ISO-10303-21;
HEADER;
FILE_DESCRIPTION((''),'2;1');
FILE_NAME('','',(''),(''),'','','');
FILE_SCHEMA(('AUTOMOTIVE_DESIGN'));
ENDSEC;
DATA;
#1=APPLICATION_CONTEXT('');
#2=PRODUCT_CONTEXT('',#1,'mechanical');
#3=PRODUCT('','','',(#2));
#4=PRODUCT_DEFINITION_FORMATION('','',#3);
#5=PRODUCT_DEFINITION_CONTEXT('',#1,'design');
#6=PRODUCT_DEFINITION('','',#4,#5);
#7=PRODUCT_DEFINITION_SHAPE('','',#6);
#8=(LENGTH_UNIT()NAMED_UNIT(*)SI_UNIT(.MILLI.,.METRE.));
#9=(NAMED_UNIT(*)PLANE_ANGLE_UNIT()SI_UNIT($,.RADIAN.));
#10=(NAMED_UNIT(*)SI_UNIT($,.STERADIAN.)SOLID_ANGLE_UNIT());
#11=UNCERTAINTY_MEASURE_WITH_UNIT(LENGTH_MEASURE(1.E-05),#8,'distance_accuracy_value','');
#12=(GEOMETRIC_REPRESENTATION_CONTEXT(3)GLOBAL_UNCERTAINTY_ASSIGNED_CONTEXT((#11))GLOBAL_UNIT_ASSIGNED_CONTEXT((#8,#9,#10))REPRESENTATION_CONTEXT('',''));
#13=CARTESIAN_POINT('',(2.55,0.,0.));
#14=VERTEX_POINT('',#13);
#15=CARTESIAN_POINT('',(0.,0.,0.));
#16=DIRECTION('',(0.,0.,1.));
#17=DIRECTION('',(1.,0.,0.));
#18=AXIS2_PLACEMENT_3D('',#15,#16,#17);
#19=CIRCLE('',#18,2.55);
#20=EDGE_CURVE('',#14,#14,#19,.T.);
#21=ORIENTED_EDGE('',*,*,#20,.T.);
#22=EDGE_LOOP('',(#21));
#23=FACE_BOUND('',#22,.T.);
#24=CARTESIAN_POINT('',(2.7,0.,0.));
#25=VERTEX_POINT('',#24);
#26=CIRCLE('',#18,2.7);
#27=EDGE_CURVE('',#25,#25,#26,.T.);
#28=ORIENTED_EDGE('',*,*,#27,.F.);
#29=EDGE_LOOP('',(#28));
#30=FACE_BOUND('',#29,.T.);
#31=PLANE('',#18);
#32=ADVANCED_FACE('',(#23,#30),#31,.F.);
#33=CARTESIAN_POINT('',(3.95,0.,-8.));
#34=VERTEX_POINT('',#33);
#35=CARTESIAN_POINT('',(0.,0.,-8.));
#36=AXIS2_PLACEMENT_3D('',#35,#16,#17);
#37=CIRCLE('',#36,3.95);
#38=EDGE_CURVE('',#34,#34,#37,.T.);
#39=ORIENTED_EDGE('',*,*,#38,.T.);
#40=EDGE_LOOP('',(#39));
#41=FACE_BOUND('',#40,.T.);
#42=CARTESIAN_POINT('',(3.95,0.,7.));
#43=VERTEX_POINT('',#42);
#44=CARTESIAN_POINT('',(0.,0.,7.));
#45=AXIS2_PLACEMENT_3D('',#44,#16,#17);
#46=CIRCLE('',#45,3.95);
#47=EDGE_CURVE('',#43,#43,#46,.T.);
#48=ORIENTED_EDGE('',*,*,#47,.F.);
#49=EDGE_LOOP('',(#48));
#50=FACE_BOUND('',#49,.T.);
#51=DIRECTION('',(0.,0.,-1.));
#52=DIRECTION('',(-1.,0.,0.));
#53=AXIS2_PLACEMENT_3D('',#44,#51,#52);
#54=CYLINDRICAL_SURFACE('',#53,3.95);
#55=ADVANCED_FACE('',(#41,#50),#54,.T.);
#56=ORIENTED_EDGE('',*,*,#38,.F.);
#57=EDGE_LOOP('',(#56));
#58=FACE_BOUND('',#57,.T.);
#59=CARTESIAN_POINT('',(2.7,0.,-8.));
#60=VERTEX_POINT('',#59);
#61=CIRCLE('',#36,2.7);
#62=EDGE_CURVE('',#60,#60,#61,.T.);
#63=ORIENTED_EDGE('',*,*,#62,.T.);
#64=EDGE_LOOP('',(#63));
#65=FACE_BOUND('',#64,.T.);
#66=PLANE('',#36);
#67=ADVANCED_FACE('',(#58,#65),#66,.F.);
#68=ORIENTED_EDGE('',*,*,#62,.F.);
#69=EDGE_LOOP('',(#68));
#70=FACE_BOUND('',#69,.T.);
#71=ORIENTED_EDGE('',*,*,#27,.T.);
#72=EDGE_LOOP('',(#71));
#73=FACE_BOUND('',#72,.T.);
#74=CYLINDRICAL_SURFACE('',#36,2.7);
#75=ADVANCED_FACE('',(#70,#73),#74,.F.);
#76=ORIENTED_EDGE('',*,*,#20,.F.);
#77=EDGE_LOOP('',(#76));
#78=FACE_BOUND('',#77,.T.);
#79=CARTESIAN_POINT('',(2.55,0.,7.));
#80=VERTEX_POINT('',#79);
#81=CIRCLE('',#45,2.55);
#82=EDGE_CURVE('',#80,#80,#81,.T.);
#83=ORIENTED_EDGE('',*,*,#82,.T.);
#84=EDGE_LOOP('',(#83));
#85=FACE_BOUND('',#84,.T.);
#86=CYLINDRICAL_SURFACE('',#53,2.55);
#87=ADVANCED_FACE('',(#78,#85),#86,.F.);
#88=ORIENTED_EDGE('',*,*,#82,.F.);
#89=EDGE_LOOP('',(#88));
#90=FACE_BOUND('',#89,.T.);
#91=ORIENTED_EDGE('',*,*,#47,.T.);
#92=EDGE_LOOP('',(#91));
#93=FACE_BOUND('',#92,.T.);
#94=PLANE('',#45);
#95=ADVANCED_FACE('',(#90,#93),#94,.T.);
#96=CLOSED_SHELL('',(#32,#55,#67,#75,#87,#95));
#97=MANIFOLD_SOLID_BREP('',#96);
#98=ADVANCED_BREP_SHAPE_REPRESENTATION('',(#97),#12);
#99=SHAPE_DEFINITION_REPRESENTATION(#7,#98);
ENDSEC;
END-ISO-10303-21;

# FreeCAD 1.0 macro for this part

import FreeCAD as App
import Part
import Sketcher

doc = App.newDocument("Part")
body = doc.addObject("PartDesign::Body", "Body")

sketch1 = body.newObject("Sketcher::SketchObject", "Sketch")
sketch1.AttachmentSupport = (doc.getObject("XY_Plane"), [""])
sketch1.MapMode = "FlatFace"
sketch1.addGeometry([
    Part.Circle(App.Vector(0, 0, 0), App.Vector(0, 0, 1), 4),
    Part.Circle(App.Vector(0, 0, 0), App.Vector(0, 0, 1), 2.5),
], False)
sketch1.addConstraint([
    Sketcher.Constraint("Coincident", 0, 3, -1, 1),
    Sketcher.Constraint("Coincident", 1, 3, -1, 1),
    Sketcher.Constraint("Diameter", 0, 7.9),
    Sketcher.Constraint("Diameter", 1, 5.1),
])
pad1 = body.newObject("PartDesign::Pad", "Pad")
pad1.Profile = sketch1
pad1.Length = 7

sketch2 = body.newObject("Sketcher::SketchObject", "Sketch001")
sketch2.AttachmentSupport = (doc.getObject("XY_Plane"), [""])
sketch2.MapMode = "FlatFace"
sketch2.AttachmentOffset = App.Placement(App.Vector(0, 0, -8), App.Rotation())
sketch2.addGeometry([
    Part.Circle(App.Vector(0, 0, 0), App.Vector(0, 0, 1), 4),
    Part.Circle(App.Vector(0, 0, 0), App.Vector(0, 0, 1), 2.7),
], False)
sketch2.addConstraint([
    Sketcher.Constraint("Coincident", 0, 3, -1, 1),
    Sketcher.Constraint("Coincident", 1, 3, -1, 1),
    Sketcher.Constraint("Diameter", 0, 7.9),
    Sketcher.Constraint("Diameter", 1, 5.4),
])
pad2 = body.newObject("PartDesign::Pad", "Pad001")
pad2.Profile = sketch2
pad2.Length = 8

doc.recompute()
